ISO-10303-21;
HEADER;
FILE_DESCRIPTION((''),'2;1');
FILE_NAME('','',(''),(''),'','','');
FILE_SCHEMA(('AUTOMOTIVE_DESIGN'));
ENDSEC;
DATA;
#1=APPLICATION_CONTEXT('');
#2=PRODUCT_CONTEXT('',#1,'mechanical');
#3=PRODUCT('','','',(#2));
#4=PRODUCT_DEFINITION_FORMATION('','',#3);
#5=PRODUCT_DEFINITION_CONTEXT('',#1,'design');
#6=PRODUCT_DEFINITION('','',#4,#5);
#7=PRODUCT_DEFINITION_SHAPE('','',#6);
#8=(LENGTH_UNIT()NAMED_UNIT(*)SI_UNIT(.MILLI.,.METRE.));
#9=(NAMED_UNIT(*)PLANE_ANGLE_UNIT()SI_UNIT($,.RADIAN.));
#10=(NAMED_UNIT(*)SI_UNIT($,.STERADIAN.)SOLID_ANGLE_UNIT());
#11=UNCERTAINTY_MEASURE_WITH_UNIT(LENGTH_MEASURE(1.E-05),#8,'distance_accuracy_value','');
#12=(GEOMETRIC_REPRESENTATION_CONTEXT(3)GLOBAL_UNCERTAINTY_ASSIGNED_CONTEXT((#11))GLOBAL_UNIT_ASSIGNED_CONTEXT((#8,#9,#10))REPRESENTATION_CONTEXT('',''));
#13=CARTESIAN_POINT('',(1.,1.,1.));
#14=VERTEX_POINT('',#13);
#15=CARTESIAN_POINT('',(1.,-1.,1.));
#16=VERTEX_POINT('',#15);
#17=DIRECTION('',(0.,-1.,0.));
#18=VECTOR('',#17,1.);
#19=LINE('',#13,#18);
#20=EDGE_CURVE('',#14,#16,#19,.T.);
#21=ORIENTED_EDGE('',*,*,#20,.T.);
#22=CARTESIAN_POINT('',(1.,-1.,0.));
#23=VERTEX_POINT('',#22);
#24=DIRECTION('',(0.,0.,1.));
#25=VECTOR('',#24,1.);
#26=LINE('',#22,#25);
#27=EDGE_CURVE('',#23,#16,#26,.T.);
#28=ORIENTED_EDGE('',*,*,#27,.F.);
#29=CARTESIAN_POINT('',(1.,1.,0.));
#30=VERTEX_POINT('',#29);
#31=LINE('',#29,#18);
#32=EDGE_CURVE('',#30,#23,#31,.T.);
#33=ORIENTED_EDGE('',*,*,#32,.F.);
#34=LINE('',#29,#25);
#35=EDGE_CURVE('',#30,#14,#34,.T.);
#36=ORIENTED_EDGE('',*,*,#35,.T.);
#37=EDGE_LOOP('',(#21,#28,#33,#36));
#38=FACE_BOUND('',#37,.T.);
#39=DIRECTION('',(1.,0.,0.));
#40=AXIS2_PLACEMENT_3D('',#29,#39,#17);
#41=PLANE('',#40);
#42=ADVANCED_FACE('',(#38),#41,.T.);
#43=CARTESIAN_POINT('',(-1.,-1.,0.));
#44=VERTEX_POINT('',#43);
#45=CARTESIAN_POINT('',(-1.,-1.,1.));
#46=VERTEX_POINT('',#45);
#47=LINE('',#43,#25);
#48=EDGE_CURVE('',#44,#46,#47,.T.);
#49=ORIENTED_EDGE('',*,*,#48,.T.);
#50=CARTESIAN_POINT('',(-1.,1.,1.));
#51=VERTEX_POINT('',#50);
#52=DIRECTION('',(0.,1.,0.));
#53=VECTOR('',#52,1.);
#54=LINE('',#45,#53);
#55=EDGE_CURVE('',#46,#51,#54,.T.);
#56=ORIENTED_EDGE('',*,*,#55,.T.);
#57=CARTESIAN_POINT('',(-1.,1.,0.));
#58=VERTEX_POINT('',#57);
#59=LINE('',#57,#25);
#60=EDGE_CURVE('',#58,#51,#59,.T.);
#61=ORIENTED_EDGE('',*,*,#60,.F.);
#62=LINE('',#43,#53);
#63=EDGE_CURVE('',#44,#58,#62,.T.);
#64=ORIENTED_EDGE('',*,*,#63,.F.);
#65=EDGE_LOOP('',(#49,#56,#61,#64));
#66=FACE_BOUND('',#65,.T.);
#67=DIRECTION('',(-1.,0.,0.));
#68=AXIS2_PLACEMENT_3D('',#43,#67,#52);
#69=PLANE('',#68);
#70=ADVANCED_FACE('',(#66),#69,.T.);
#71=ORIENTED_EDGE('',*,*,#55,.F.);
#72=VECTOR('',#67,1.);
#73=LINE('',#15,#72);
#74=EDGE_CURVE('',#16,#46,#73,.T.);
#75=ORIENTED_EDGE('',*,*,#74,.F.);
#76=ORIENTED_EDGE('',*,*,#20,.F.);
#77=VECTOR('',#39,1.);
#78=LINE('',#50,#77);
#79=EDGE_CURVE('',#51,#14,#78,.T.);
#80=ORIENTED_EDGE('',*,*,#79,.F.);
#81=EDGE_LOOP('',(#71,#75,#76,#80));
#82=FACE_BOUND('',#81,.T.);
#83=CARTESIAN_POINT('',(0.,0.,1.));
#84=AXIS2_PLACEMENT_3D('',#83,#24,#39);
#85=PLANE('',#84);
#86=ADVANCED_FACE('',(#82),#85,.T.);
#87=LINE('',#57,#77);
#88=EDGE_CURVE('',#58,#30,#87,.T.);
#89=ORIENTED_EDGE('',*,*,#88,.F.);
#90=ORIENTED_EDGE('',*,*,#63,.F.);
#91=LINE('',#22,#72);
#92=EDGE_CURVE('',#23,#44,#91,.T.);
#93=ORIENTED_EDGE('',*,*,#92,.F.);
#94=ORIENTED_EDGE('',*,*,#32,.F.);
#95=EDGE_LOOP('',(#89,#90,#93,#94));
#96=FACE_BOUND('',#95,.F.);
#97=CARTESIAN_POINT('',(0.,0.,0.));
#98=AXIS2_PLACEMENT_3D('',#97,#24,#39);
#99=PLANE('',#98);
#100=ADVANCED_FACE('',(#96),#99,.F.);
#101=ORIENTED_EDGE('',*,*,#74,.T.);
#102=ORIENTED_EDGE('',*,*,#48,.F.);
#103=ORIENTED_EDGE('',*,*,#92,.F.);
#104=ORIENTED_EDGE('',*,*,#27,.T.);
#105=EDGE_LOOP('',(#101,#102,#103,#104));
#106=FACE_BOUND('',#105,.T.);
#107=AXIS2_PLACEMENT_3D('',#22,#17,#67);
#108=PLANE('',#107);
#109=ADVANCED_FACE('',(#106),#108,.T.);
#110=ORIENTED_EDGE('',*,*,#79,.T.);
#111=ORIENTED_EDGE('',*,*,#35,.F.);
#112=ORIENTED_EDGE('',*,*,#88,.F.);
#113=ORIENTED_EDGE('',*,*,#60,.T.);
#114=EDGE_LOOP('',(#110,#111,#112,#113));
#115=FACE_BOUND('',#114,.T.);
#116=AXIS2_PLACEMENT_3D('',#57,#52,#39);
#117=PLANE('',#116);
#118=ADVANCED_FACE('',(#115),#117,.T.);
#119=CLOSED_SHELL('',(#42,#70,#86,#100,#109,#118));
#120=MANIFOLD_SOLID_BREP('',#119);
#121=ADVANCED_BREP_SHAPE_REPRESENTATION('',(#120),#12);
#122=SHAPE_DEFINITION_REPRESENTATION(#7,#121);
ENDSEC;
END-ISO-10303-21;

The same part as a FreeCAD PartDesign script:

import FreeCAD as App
import Part
import Sketcher
Q = App.Units.Quantity

doc = App.newDocument("Part")
params = doc.addObject("Spreadsheet::Sheet", "Params")
for row, (alias, value) in enumerate([
    ("sketch1_width", "2 mm"),
    ("pad1_length", "1 mm"),
], start=1):
    params.set(f"A{row}", alias)
    params.set(f"B{row}", "=" + value)
    params.setAlias(f"B{row}", alias)

body = doc.addObject("PartDesign::Body", "Body")

sketch1 = body.newObject("Sketcher::SketchObject", "Sketch")
sketch1.AttachmentSupport = (doc.getObject("XY_Plane"), [""])
sketch1.MapMode = "FlatFace"
sketch1.addGeometry([
    Part.LineSegment(App.Vector(-1, -1, 0), App.Vector(1, -1, 0)),
    Part.LineSegment(App.Vector(1, -1, 0), App.Vector(1, 1, 0)),
    Part.LineSegment(App.Vector(1, 1, 0), App.Vector(-1, 1, 0)),
    Part.LineSegment(App.Vector(-1, 1, 0), App.Vector(-1, -1, 0)),
], False)
sketch1.addConstraint([
    Sketcher.Constraint("Coincident", 0, 2, 1, 1),
    Sketcher.Constraint("Coincident", 1, 2, 2, 1),
    Sketcher.Constraint("Coincident", 2, 2, 3, 1),
    Sketcher.Constraint("Coincident", 3, 2, 0, 1),
    Sketcher.Constraint("Horizontal", 0),
    Sketcher.Constraint("Vertical", 1),
    Sketcher.Constraint("Horizontal", 2),
    Sketcher.Constraint("Vertical", 3),
    Sketcher.Constraint("Symmetric", 0, 2, 2, 2, -1, 1),
    Sketcher.Constraint("Equal", 2, 1),
    Sketcher.Constraint("DistanceX", 0, 1, 0, 2, Q("2 mm")),
])
sketch1.setExpression("Constraints[10]", "Params.sketch1_width")
pad1 = body.newObject("PartDesign::Pad", "Pad")
pad1.Profile = sketch1
pad1.setExpression("Length", "Params.pad1_length")

doc.recompute()
